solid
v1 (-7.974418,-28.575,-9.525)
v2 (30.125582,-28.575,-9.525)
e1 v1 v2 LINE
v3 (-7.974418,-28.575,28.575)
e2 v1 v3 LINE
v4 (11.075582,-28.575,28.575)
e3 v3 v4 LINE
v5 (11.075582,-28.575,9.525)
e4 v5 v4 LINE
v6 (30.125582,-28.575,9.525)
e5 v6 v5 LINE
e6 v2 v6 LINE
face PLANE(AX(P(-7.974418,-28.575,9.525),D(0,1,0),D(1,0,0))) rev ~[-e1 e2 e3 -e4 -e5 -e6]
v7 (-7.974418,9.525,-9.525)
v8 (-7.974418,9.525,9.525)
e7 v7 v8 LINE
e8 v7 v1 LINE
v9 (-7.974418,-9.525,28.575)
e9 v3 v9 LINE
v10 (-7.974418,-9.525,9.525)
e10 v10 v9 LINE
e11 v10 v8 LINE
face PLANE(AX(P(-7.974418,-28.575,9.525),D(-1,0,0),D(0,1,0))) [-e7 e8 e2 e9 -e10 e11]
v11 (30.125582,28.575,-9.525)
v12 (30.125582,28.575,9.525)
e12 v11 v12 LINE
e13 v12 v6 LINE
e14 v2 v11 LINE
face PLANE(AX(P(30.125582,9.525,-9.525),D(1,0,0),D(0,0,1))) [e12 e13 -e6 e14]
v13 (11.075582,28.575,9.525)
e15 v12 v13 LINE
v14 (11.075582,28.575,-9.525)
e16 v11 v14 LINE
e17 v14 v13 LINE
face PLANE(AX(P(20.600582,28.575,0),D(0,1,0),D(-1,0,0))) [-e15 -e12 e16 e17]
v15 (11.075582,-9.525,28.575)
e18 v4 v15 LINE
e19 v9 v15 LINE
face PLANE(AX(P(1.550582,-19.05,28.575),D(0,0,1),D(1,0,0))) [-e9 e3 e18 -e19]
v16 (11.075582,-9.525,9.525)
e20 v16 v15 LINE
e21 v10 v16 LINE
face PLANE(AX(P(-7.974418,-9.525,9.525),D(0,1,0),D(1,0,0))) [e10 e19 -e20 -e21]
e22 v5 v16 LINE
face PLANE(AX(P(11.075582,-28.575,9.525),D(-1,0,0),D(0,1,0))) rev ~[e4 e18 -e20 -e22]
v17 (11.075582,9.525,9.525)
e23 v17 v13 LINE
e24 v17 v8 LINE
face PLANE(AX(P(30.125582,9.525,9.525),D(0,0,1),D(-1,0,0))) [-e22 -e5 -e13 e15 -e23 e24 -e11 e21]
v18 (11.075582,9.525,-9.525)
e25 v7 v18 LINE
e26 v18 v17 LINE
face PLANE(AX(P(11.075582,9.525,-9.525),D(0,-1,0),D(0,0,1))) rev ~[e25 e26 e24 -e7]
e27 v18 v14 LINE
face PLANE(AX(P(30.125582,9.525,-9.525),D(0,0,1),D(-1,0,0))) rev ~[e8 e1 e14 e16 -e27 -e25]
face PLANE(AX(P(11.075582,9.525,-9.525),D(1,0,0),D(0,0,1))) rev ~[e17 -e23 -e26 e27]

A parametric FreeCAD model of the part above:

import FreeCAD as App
import Part
import Sketcher
Q = App.Units.Quantity


def add_polygon(sketch, points):
    """Adds a closed chain of lines whose ends are joined by coincident constraints."""
    first, n = sketch.GeometryCount, len(points)
    for a, b in zip(points, points[1:] + points[:1]):
        sketch.addGeometry(Part.LineSegment(App.Vector(*a, 0), App.Vector(*b, 0)), False)
    for i in range(n):
        sketch.addConstraint(Sketcher.Constraint("Coincident", first + i, 2, first + (i + 1) % n, 1))

doc = App.newDocument("Part")
body = doc.addObject("PartDesign::Body", "Body")

sketch1 = body.newObject("Sketcher::SketchObject", "Sketch")
sketch1.AttachmentSupport = (doc.getObject("XZ_Plane"), [""])
sketch1.MapMode = "FlatFace"
add_polygon(sketch1, [(-7.974418, 9.525), (-7.974418, -9.525), (11.075582, -9.525), (11.075582, 9.525)])
sketch1.addConstraint(Sketcher.Constraint("Vertical", 0))
sketch1.addConstraint(Sketcher.Constraint("Horizontal", 1))
sketch1.addConstraint(Sketcher.Constraint("Vertical", 2))
sketch1.addConstraint(Sketcher.Constraint("Horizontal", 3))
sketch1.addConstraint(Sketcher.Constraint("Equal", 3, 0))
sketch1.addConstraint(Sketcher.Constraint("DistanceX", 1, 1, 1, 2, Q("0.75 in")))
sketch1.addConstraint(Sketcher.Constraint("DistanceY", 0, 2, -1, 1, Q("0.375 in")))
sketch1.addConstraint(Sketcher.Constraint("DistanceX", 0, 2, -1, 1, Q("7.974418 mm")))
pad1 = body.newObject("PartDesign::Pad", "Pad")
pad1.Profile = sketch1
pad1.Length = Q("0.75 in")
pad1.Midplane = True

sketch2 = body.newObject("Sketcher::SketchObject", "Sketch001")
sketch2.AttachmentSupport = (doc.getObject("XZ_Plane"), [""])
sketch2.MapMode = "FlatFace"
sketch2.AttachmentOffset = App.Placement(App.Vector(0, 0, 0.375 * 25.4), App.Rotation())
add_polygon(sketch2, [(-7.974418, 9.525), (-7.974418, -9.525), (11.075582, -9.525), (11.075582, 9.525)])
sketch2.addConstraint(Sketcher.Constraint("Vertical", 0))
sketch2.addConstraint(Sketcher.Constraint("Horizontal", 1))
sketch2.addConstraint(Sketcher.Constraint("Vertical", 2))
sketch2.addConstraint(Sketcher.Constraint("Horizontal", 3))
sketch2.addConstraint(Sketcher.Constraint("Equal", 3, 0))
sketch2.addConstraint(Sketcher.Constraint("DistanceX", 1, 1, 1, 2, Q("0.75 in")))
sketch2.addConstraint(Sketcher.Constraint("DistanceY", 0, 2, -1, 1, Q("0.375 in")))
sketch2.addConstraint(Sketcher.Constraint("DistanceX", 0, 2, -1, 1, Q("7.974418 mm")))
pad2 = body.newObject("PartDesign::Pad", "Pad001")
pad2.Profile = sketch2
pad2.Length = Q("0.75 in")

sketch3 = body.newObject("Sketcher::SketchObject", "Sketch002")
sketch3.AttachmentSupport = (doc.getObject("YZ_Plane"), [""])
sketch3.MapMode = "FlatFace"
sketch3.AttachmentOffset = App.Placement(App.Vector(0, 0, 11.075582), App.Rotation())
add_polygon(sketch3, [(-28.575, 9.525), (-28.575, -9.525), (9.525, -9.525), (9.525, 9.525)])
sketch3.addConstraint(Sketcher.Constraint("Vertical", 0))
sketch3.addConstraint(Sketcher.Constraint("Horizontal", 1))
sketch3.addConstraint(Sketcher.Constraint("Vertical", 2))
sketch3.addConstraint(Sketcher.Constraint("Horizontal", 3))
sketch3.addConstraint(Sketcher.Constraint("DistanceX", 1, 1, 1, 2, Q("1.5 in")))
sketch3.addConstraint(Sketcher.Constraint("DistanceY", 0, 2, 0, 1, Q("0.75 in")))
sketch3.addConstraint(Sketcher.Constraint("DistanceX", 0, 2, -1, 1, Q("1.125 in")))
sketch3.addConstraint(Sketcher.Constraint("DistanceY", 0, 2, -1, 1, Q("0.375 in")))
pad3 = body.newObject("PartDesign::Pad", "Pad002")
pad3.Profile = sketch3
pad3.Length = Q("0.75 in")

sketch4 = body.newObject("Sketcher::SketchObject", "Sketch003")
sketch4.AttachmentSupport = (doc.getObject("XY_Plane"), [""])
sketch4.MapMode = "FlatFace"
sketch4.AttachmentOffset = App.Placement(App.Vector(0, 0, 0.375 * 25.4), App.Rotation())
add_polygon(sketch4, [(-7.974418, -9.525), (-7.974418, -28.575), (11.075582, -28.575), (11.075582, -9.525)])
sketch4.addConstraint(Sketcher.Constraint("Vertical", 0))
sketch4.addConstraint(Sketcher.Constraint("Horizontal", 1))
sketch4.addConstraint(Sketcher.Constraint("Vertical", 2))
sketch4.addConstraint(Sketcher.Constraint("Horizontal", 3))
sketch4.addConstraint(Sketcher.Constraint("Equal", 3, 0))
sketch4.addConstraint(Sketcher.Constraint("DistanceX", 1, 1, 1, 2, Q("0.75 in")))
sketch4.addConstraint(Sketcher.Constraint("DistanceY", 0, 2, -1, 1, Q("1.125 in")))
sketch4.addConstraint(Sketcher.Constraint("DistanceX", 0, 2, -1, 1, Q("7.974418 mm")))
pad4 = body.newObject("PartDesign::Pad", "Pad003")
pad4.Profile = sketch4
pad4.Length = Q("0.75 in")

sketch5 = body.newObject("Sketcher::SketchObject", "Sketch004")
sketch5.AttachmentSupport = (doc.getObject("XZ_Plane"), [""])
sketch5.MapMode = "FlatFace"
sketch5.AttachmentOffset = App.Placement(App.Vector(0, 0, -0.375 * 25.4), App.Rotation())
add_polygon(sketch5, [(30.125582, 9.525), (30.125582, -9.525), (11.075582, -9.525), (11.075582, 9.525)])
sketch5.addConstraint(Sketcher.Constraint("Vertical", 0))
sketch5.addConstraint(Sketcher.Constraint("Horizontal", 1))
sketch5.addConstraint(Sketcher.Constraint("Vertical", 2))
sketch5.addConstraint(Sketcher.Constraint("Horizontal", 3))
sketch5.addConstraint(Sketcher.Constraint("Equal", 3, 0))
sketch5.addConstraint(Sketcher.Constraint("DistanceX", 1, 2, 1, 1, Q("0.75 in")))
sketch5.addConstraint(Sketcher.Constraint("DistanceY", 0, 2, -1, 1, Q("0.375 in")))
sketch5.addConstraint(Sketcher.Constraint("DistanceX", -1, 1, 0, 2, Q("30.125582 mm")))
pad5 = body.newObject("PartDesign::Pad", "Pad004")
pad5.Profile = sketch5
pad5.Length = Q("0.75 in")
pad5.Reversed = True

doc.recompute()
